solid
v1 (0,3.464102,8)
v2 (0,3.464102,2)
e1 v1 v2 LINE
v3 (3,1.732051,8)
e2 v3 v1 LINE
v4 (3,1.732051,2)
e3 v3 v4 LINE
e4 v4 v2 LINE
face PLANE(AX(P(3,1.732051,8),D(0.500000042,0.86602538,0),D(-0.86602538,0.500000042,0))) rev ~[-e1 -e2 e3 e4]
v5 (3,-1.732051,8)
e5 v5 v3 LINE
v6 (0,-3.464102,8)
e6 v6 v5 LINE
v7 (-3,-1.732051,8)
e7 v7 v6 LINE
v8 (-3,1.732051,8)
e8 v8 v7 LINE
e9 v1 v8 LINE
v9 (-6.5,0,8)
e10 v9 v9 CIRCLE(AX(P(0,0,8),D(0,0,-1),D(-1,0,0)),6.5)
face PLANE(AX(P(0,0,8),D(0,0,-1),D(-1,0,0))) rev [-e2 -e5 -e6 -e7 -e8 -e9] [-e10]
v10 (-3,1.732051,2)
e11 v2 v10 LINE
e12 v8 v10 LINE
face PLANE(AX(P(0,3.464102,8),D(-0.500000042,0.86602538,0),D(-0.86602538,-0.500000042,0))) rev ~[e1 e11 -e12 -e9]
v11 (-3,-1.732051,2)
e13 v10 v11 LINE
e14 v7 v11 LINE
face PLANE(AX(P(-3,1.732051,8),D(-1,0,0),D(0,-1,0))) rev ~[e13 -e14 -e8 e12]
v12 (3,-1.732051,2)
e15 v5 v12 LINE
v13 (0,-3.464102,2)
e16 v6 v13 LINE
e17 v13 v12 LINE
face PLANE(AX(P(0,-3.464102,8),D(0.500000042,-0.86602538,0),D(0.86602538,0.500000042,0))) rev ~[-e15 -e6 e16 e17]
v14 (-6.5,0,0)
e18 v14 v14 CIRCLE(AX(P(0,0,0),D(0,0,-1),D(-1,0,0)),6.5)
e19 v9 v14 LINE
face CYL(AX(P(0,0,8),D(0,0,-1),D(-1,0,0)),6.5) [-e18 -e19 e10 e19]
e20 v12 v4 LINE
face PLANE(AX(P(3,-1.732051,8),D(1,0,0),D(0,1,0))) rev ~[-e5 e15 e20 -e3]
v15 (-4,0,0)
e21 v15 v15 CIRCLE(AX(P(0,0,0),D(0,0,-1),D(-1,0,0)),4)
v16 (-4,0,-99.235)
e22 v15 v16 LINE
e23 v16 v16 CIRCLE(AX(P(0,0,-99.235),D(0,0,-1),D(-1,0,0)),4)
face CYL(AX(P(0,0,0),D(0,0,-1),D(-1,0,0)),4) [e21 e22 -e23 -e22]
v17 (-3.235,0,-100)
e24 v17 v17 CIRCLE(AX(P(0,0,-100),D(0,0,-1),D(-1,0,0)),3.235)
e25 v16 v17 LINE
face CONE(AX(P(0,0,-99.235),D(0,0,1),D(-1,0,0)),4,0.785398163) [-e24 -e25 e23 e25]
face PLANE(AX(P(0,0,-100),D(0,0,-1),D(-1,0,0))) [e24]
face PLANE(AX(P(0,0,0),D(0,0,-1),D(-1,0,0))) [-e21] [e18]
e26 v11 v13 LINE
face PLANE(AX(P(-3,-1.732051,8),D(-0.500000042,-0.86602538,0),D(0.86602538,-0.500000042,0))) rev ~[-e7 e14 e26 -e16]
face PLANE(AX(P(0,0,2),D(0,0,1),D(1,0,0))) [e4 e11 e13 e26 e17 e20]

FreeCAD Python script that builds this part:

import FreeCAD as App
import Part
import Sketcher
Q = App.Units.Quantity

doc = App.newDocument("Part")
body = doc.addObject("PartDesign::Body", "Body")

# Sketch on XZ plane
sketch1 = body.newObject("Sketcher::SketchObject", "Sketch")
sketch1.AttachmentSupport = (doc.getObject("XZ_Plane"), [""])
sketch1.MapMode = "FlatFace"
sketch1.addGeometry([
    Part.LineSegment(App.Vector(0, 8, 0), App.Vector(-6.5, 8, 0)),  # 0
    Part.LineSegment(App.Vector(-6.5, 8, 0), App.Vector(-6.5, 0, 0)),  # 1
    Part.LineSegment(App.Vector(-6.5, 0, 0), App.Vector(-4, 0, 0)),  # 2
    Part.LineSegment(App.Vector(-4, 0, 0), App.Vector(-4, -99.235, 0)),  # 3
    Part.LineSegment(App.Vector(-4, -99.235, 0), App.Vector(-3.235, -100, 0)),  # 4
    Part.LineSegment(App.Vector(-3.235, -100, 0), App.Vector(0, -100, 0)),  # 5
    Part.LineSegment(App.Vector(0, -100, 0), App.Vector(0, 8, 0)),  # 6
], False)
sketch1.addConstraint([
    Sketcher.Constraint("Coincident", 0, 2, 1, 1),
    Sketcher.Constraint("Coincident", 1, 2, 2, 1),
    Sketcher.Constraint("Coincident", 2, 2, 3, 1),
    Sketcher.Constraint("Coincident", 3, 2, 4, 1),
    Sketcher.Constraint("Coincident", 4, 2, 5, 1),
    Sketcher.Constraint("Coincident", 5, 2, 6, 1),
    Sketcher.Constraint("Coincident", 6, 2, 0, 1),
    Sketcher.Constraint("Horizontal", 0),
    Sketcher.Constraint("Vertical", 1),
    Sketcher.Constraint("Horizontal", 2),
    Sketcher.Constraint("Vertical", 3),
    Sketcher.Constraint("Horizontal", 5),
    Sketcher.Constraint("Vertical", 6),
    Sketcher.Constraint("PointOnObject", 1, 2, -1),
    Sketcher.Constraint("PointOnObject", 5, 2, -2),
    Sketcher.Constraint("DistanceY", 1, 2, 1, 1, 8.0),
    Sketcher.Constraint("DistanceY", 6, 1, 6, 2, 108.0),
    Sketcher.Constraint("Angle", 4, Q("-45 deg")),
    Sketcher.Constraint("DistanceX", 0, 2, 0, 1, 6.5),
    Sketcher.Constraint("DistanceX", 2, 1, 2, 2, 2.5),
    Sketcher.Constraint("DistanceX", 5, 1, 5, 2, 3.235),
])
revolution = body.newObject("PartDesign::Revolution", "Revolution")
revolution.Profile = sketch1
revolution.ReferenceAxis = (sketch1, ["V_Axis"])
revolution.Angle = 360

# Sketch on XY plane
sketch2 = body.newObject("Sketcher::SketchObject", "Sketch001")
sketch2.AttachmentSupport = (doc.getObject("XY_Plane"), [""])
sketch2.MapMode = "FlatFace"
sketch2.AttachmentOffset = App.Placement(App.Vector(0, 0, 8), App.Rotation())
sketch2.addGeometry([
    Part.LineSegment(App.Vector(3, -1.732051, 0), App.Vector(3, 1.732051, 0)),  # 0
    Part.LineSegment(App.Vector(3, 1.732051, 0), App.Vector(0, 3.464102, 0)),  # 1
    Part.LineSegment(App.Vector(0, 3.464102, 0), App.Vector(-3, 1.732051, 0)),  # 2
    Part.LineSegment(App.Vector(-3, 1.732051, 0), App.Vector(-3, -1.732051, 0)),  # 3
    Part.LineSegment(App.Vector(-3, -1.732051, 0), App.Vector(0, -3.464102, 0)),  # 4
    Part.LineSegment(App.Vector(0, -3.464102, 0), App.Vector(3, -1.732051, 0)),  # 5
], False)
sketch2.addConstraint([
    Sketcher.Constraint("Coincident", 0, 2, 1, 1),
    Sketcher.Constraint("Coincident", 1, 2, 2, 1),
    Sketcher.Constraint("Coincident", 2, 2, 3, 1),
    Sketcher.Constraint("Coincident", 3, 2, 4, 1),
    Sketcher.Constraint("Coincident", 4, 2, 5, 1),
    Sketcher.Constraint("Coincident", 5, 2, 0, 1),
    Sketcher.Constraint("Vertical", 0),
    Sketcher.Constraint("Vertical", 3),
    Sketcher.Constraint("Symmetric", 0, 2, 3, 2, -1, 1),
    Sketcher.Constraint("Symmetric", 1, 2, 4, 2, -1, 1),
    Sketcher.Constraint("PointOnObject", 1, 2, -2),
    Sketcher.Constraint("Parallel", 2, 5),
    Sketcher.Constraint("Horizontal", 0, 2, 2, 2),
    Sketcher.Constraint("Angle", 1, Q("149.999997 deg")),
    Sketcher.Constraint("DistanceX", -1, 1, 0, 2, 3.0),
    Sketcher.Constraint("DistanceY", 0, 1, 0, 2, 3.464102),
])
pocket1 = body.newObject("PartDesign::Pocket", "Pocket")
pocket1.Profile = sketch2
pocket1.Length = 6
pocket2 = body.newObject("PartDesign::Pocket", "Pocket001")
pocket2.Profile = sketch2
pocket2.Length = 6

doc.recompute()
